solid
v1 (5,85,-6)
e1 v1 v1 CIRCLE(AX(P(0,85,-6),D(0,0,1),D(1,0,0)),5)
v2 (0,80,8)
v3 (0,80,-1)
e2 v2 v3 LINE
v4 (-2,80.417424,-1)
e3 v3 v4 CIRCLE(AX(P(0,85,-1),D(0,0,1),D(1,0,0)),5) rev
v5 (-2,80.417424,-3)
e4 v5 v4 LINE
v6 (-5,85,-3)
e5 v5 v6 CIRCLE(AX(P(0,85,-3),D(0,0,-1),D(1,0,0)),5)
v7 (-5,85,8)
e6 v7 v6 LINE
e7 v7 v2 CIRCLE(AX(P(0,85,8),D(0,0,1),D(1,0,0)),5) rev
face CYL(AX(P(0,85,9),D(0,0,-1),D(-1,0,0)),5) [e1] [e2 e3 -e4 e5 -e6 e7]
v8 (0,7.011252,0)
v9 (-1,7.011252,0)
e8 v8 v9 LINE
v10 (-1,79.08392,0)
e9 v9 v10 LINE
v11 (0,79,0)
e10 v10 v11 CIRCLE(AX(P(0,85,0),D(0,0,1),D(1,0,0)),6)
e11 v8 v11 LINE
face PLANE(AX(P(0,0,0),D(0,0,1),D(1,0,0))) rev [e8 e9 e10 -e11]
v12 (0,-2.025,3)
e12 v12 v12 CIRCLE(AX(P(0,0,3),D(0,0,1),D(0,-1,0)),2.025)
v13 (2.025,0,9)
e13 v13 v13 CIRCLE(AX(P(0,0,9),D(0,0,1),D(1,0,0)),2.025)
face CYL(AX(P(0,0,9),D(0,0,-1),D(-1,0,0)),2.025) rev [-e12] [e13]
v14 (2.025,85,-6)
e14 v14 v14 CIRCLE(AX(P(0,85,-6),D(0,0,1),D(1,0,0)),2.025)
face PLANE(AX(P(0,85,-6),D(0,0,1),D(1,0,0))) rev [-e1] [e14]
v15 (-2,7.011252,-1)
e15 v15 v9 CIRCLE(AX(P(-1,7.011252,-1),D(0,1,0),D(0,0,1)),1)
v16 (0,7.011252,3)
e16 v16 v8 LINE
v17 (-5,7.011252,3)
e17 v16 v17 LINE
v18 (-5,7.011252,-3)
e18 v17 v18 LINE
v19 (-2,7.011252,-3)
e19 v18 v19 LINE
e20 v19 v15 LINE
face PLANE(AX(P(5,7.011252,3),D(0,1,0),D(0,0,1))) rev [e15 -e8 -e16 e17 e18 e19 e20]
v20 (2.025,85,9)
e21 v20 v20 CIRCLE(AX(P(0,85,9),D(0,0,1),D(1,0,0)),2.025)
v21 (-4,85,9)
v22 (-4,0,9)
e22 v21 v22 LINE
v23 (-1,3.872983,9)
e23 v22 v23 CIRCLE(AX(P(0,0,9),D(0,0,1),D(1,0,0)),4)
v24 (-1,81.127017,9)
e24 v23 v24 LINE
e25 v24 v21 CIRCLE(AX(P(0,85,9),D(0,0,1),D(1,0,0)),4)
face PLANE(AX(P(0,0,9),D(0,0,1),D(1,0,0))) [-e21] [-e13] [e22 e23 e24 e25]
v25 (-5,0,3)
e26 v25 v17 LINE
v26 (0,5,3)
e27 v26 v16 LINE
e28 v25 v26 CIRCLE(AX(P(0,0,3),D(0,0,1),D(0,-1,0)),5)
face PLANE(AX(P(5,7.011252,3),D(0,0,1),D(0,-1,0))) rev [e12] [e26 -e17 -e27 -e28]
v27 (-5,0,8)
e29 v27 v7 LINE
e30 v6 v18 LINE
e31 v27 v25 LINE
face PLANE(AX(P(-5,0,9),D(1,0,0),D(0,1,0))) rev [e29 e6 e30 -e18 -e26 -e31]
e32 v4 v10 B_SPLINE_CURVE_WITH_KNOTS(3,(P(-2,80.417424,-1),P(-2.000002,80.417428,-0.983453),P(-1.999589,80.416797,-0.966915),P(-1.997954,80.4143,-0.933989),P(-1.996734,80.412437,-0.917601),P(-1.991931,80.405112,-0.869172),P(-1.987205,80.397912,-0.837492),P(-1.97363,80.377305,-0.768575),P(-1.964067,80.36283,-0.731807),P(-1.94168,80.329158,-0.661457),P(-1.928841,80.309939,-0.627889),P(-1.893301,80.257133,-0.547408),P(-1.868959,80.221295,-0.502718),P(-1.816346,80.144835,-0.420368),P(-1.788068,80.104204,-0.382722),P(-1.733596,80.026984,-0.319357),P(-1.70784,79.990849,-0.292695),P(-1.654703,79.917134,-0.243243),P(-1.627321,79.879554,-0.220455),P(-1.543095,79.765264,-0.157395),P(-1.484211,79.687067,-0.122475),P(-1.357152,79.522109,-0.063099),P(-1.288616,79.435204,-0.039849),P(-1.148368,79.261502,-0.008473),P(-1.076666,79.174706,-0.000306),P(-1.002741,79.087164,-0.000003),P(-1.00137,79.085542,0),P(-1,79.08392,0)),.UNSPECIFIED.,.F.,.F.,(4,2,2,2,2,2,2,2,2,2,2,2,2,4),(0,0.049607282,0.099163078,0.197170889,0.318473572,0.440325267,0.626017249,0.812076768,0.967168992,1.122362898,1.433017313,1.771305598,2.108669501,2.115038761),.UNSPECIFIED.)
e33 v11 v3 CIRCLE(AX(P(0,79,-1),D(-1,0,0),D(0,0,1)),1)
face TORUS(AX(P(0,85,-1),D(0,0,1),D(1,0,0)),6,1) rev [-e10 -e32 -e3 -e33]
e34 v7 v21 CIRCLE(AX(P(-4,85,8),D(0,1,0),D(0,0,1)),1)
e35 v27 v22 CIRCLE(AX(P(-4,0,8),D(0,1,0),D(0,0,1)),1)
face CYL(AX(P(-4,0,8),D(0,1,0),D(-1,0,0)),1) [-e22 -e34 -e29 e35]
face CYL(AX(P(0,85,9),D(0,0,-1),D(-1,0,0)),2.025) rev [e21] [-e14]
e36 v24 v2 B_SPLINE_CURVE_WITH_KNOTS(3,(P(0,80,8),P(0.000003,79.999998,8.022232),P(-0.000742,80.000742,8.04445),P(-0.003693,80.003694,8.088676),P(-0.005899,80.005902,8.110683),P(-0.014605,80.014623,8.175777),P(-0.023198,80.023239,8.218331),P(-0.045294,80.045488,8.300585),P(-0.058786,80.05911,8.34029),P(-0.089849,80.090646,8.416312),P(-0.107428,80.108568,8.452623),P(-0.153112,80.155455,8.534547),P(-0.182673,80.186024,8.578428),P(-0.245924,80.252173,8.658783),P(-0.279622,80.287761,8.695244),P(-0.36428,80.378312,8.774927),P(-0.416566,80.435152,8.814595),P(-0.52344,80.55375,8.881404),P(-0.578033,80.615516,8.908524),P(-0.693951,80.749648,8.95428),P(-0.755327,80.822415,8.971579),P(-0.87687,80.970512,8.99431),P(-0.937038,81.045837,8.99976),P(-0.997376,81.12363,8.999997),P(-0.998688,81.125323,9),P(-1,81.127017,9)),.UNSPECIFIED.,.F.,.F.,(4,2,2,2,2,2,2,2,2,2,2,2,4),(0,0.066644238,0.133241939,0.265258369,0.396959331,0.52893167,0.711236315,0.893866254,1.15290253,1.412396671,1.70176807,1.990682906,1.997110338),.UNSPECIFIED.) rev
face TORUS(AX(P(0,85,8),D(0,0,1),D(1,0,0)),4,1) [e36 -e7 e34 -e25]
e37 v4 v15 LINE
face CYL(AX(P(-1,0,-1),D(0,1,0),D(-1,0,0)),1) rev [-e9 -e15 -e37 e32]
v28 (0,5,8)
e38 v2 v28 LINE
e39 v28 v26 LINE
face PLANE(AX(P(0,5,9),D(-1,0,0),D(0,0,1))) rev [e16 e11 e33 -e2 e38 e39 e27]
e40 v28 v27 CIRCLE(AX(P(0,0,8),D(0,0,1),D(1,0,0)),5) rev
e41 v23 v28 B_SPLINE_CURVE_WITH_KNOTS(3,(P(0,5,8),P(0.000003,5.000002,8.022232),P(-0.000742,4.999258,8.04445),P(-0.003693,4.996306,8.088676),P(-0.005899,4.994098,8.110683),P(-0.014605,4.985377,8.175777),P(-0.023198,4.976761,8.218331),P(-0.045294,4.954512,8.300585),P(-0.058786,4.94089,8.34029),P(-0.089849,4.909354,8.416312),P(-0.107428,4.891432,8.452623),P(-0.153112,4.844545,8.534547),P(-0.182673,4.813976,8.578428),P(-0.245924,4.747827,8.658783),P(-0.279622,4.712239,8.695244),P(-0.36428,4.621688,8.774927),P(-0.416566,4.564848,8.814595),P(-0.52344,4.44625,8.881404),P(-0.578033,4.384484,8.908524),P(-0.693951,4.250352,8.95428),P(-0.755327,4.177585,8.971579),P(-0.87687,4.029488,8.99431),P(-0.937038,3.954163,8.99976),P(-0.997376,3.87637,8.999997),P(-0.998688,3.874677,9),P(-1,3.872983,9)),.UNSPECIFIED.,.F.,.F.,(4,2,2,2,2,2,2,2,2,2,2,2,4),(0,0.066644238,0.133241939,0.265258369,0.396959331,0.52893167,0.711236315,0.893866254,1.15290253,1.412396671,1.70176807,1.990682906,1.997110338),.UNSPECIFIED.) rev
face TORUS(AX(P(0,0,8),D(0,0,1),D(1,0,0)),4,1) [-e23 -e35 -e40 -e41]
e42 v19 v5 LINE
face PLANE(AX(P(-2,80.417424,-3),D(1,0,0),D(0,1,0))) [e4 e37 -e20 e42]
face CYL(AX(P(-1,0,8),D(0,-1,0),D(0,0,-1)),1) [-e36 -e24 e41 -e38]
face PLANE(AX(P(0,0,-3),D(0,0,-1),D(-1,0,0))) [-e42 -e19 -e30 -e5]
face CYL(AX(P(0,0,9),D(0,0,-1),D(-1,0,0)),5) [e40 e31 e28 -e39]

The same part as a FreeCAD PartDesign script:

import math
import FreeCAD as App
import Part
import Sketcher
Q = App.Units.Quantity


def edges_at(feature, points):
    """Names of the edges that pass closest to the given points."""
    edges = feature.Shape.Edges
    near = lambda p: min(range(len(edges)), key=lambda i: edges[i].distToShape(Part.Vertex(*p))[0])
    return sorted({f"Edge{near(p) + 1}" for p in points})

doc = App.newDocument("Part")
body = doc.addObject("PartDesign::Body", "Body")

# Sketch on XY plane
sketch1 = doc.addObject("Sketcher::SketchObject", "Sketch")
body.addObject(sketch1)
sketch1.AttachmentSupport = (doc.XY_Plane, [""])
sketch1.MapMode = "FlatFace"
sketch1.addGeometry([
    Part.LineSegment(App.Vector(-5, 85, 0), App.Vector(-5, 0, 0)),  # 0
    Part.ArcOfCircle(Part.Circle(App.Vector(0, 0, 0), App.Vector(0, 0, 1), 5), math.radians(180), math.radians(270)),  # 1
    Part.ArcOfCircle(Part.Circle(App.Vector(0, 0, 0), App.Vector(0, 0, 1), 5), math.radians(-90), math.radians(90)),  # 2
    Part.LineSegment(App.Vector(0, 5, 0), App.Vector(0, 80, 0)),  # 3
    Part.ArcOfCircle(Part.Circle(App.Vector(0, 85, 0), App.Vector(0, 0, 1), 5), math.radians(-90), math.radians(180)),  # 4
    Part.Circle(App.Vector(0, 0, 0), App.Vector(0, 0, 1), 2),  # 5
    Part.Circle(App.Vector(0, 85, 0), App.Vector(0, 0, 1), 2),  # 6
], False)
sketch1.addConstraint([
    Sketcher.Constraint("Tangent", 0, 2, 1, 1),
    Sketcher.Constraint("Tangent", 1, 2, 2, 1),
    Sketcher.Constraint("Coincident", 2, 2, 3, 1),
    Sketcher.Constraint("Coincident", 3, 2, 4, 1),
    Sketcher.Constraint("Tangent", 4, 2, 0, 1),
    Sketcher.Constraint("Vertical", 0),
    Sketcher.Constraint("Vertical", 3),
    Sketcher.Constraint("Coincident", 1, 3, -1, 1),
    Sketcher.Constraint("Coincident", 5, 3, -1, 1),
    Sketcher.Constraint("Coincident", 6, 3, 4, 3),
    Sketcher.Constraint("Equal", 1, 2),
    Sketcher.Constraint("Equal", 2, 4),
    Sketcher.Constraint("Equal", 5, 6),
    Sketcher.Constraint("PointOnObject", 1, 2, -2),
    Sketcher.Constraint("PointOnObject", 2, 2, -2),
    Sketcher.Constraint("Radius", 1, Q("5 mm")),
    Sketcher.Constraint("Diameter", 5, Q("4.05 mm")),
    Sketcher.Constraint("DistanceY", 0, 2, 0, 1, Q("85 mm")),
])
pad1 = doc.addObject("PartDesign::Pad", "Pad")
body.addObject(pad1)
pad1.Profile = sketch1
pad1.Length = 9

# Sketch on XY plane
sketch2 = doc.addObject("Sketcher::SketchObject", "Sketch001")
body.addObject(sketch2)
sketch2.AttachmentSupport = (doc.XY_Plane, [""])
sketch2.MapMode = "FlatFace"
sketch2.AttachmentOffset = App.Placement(App.Vector(0, 0, -6), App.Rotation())
sketch2.addGeometry([
    Part.Circle(App.Vector(0, 85, 0), App.Vector(0, 0, 1), 5),
    Part.Circle(App.Vector(0, 85, 0), App.Vector(0, 0, 1), 2),
], False)
sketch2.addConstraint([
    Sketcher.Constraint("Coincident", 1, 3, 0, 3),
    Sketcher.Constraint("PointOnObject", 0, 3, -2),
    Sketcher.Constraint("Diameter", 0, Q("10 mm")),
    Sketcher.Constraint("Diameter", 1, Q("4.05 mm")),
    Sketcher.Constraint("DistanceY", -1, 1, 0, 3, Q("85 mm")),
])
pad2 = doc.addObject("PartDesign::Pad", "Pad001")
body.addObject(pad2)
pad2.Profile = sketch2
pad2.Length = 15

# Sketch on XY plane
sketch3 = doc.addObject("Sketcher::SketchObject", "Sketch002")
body.addObject(sketch3)
sketch3.AttachmentSupport = (doc.XY_Plane, [""])
sketch3.MapMode = "FlatFace"
sketch3.AttachmentOffset = App.Placement(App.Vector(0, 0, -3), App.Rotation())
sketch3.addGeometry([
    Part.LineSegment(App.Vector(-5, 85, 0), App.Vector(-5, 0, 0)),  # 0
    Part.ArcOfCircle(Part.Circle(App.Vector(0, 0, 0), App.Vector(0, 0, 1), 5), math.radians(180), math.radians(270)),  # 1
    Part.ArcOfCircle(Part.Circle(App.Vector(0, 0, 0), App.Vector(0, 0, 1), 5), math.radians(-90), math.radians(90)),  # 2
    Part.LineSegment(App.Vector(0, 5, 0), App.Vector(-2, 5, 0)),  # 3
    Part.LineSegment(App.Vector(-2, 5, 0), App.Vector(-2, 80.4, 0)),  # 4
    Part.ArcOfCircle(Part.Circle(App.Vector(0, 85, 0), App.Vector(0, 0, 1), 5), math.radians(180), math.radians(246)),  # 5
    Part.Circle(App.Vector(0, 0, 0), App.Vector(0, 0, 1), 2),  # 6
], False)
sketch3.addConstraint([
    Sketcher.Constraint("Tangent", 0, 2, 1, 1),
    Sketcher.Constraint("Tangent", 1, 2, 2, 1),
    Sketcher.Constraint("Tangent", 2, 2, 3, 1),
    Sketcher.Constraint("Coincident", 3, 2, 4, 1),
    Sketcher.Constraint("Coincident", 4, 2, 5, 2),
    Sketcher.Constraint("Tangent", 5, 1, 0, 1),
    Sketcher.Constraint("Vertical", 0),
    Sketcher.Constraint("Horizontal", 3),
    Sketcher.Constraint("Vertical", 4),
    Sketcher.Constraint("Coincident", 1, 3, -1, 1),
    Sketcher.Constraint("Coincident", 6, 3, -1, 1),
    Sketcher.Constraint("Equal", 1, 2),
    Sketcher.Constraint("Equal", 2, 5),
    Sketcher.Constraint("PointOnObject", 1, 2, -2),
    Sketcher.Constraint("Radius", 1, Q("5 mm")),
    Sketcher.Constraint("Diameter", 6, Q("4.05 mm")),
    Sketcher.Constraint("DistanceX", 3, 2, 3, 1, Q("2 mm")),
    Sketcher.Constraint("DistanceY", 0, 2, 0, 1, Q("85 mm")),
])
pad3 = doc.addObject("PartDesign::Pad", "Pad002")
body.addObject(pad3)
pad3.Profile = sketch3
pad3.Length = 12

# Sketch on YZ plane
sketch4 = doc.addObject("Sketcher::SketchObject", "Sketch003")
body.addObject(sketch4)
sketch4.AttachmentSupport = (doc.YZ_Plane, [""])
sketch4.MapMode = "FlatFace"
sketch4.AttachmentOffset = App.Placement(App.Vector(0, 0, -5), App.Rotation())
sketch4.addGeometry([
    Part.LineSegment(App.Vector(7, -3, 0), App.Vector(-5, -3, 0)),
    Part.LineSegment(App.Vector(-5, -3, 0), App.Vector(-5, 3, 0)),
    Part.LineSegment(App.Vector(-5, 3, 0), App.Vector(7, 3, 0)),
    Part.LineSegment(App.Vector(7, 3, 0), App.Vector(7, -3, 0)),
], False)
sketch4.addConstraint([
    Sketcher.Constraint("Coincident", 0, 2, 1, 1),
    Sketcher.Constraint("Coincident", 1, 2, 2, 1),
    Sketcher.Constraint("Coincident", 2, 2, 3, 1),
    Sketcher.Constraint("Coincident", 3, 2, 0, 1),
    Sketcher.Constraint("Horizontal", 0),
    Sketcher.Constraint("Vertical", 1),
    Sketcher.Constraint("Horizontal", 2),
    Sketcher.Constraint("Vertical", 3),
    Sketcher.Constraint("DistanceY", 1, 1, 1, 2, Q("6 mm")),
    Sketcher.Constraint("DistanceX", 0, 2, -1, 1, Q("5 mm")),
    Sketcher.Constraint("DistanceY", 0, 2, -1, 1, Q("3 mm")),
    Sketcher.Constraint("DistanceX", 0, 2, 0, 1, Q("12.011252 mm")),
])
pocket1 = doc.addObject("PartDesign::Pocket", "Pocket")
body.addObject(pocket1)
pocket1.Profile = sketch4
pocket1.Length = 10
pocket1.Reversed = True
doc.recompute()

fillet = doc.addObject("PartDesign::Fillet", "Fillet")
body.addObject(fillet)
fillet.Base = (pocket1, edges_at(pocket1, [(-1.022, 80.105, 0), (-2, 43.714, 0)]))
fillet.Radius = 1
doc.recompute()

fillet2 = doc.addObject("PartDesign::Fillet", "Fillet001")
body.addObject(fillet2)
fillet2.Base = (fillet, edges_at(fillet, [
    (0, 42.5, 9),
    (3.536, 88.536, 9),
    (-5, 42.5, 9),
    (5, 0, 9),
]))
fillet2.Radius = 1

doc.recompute()
